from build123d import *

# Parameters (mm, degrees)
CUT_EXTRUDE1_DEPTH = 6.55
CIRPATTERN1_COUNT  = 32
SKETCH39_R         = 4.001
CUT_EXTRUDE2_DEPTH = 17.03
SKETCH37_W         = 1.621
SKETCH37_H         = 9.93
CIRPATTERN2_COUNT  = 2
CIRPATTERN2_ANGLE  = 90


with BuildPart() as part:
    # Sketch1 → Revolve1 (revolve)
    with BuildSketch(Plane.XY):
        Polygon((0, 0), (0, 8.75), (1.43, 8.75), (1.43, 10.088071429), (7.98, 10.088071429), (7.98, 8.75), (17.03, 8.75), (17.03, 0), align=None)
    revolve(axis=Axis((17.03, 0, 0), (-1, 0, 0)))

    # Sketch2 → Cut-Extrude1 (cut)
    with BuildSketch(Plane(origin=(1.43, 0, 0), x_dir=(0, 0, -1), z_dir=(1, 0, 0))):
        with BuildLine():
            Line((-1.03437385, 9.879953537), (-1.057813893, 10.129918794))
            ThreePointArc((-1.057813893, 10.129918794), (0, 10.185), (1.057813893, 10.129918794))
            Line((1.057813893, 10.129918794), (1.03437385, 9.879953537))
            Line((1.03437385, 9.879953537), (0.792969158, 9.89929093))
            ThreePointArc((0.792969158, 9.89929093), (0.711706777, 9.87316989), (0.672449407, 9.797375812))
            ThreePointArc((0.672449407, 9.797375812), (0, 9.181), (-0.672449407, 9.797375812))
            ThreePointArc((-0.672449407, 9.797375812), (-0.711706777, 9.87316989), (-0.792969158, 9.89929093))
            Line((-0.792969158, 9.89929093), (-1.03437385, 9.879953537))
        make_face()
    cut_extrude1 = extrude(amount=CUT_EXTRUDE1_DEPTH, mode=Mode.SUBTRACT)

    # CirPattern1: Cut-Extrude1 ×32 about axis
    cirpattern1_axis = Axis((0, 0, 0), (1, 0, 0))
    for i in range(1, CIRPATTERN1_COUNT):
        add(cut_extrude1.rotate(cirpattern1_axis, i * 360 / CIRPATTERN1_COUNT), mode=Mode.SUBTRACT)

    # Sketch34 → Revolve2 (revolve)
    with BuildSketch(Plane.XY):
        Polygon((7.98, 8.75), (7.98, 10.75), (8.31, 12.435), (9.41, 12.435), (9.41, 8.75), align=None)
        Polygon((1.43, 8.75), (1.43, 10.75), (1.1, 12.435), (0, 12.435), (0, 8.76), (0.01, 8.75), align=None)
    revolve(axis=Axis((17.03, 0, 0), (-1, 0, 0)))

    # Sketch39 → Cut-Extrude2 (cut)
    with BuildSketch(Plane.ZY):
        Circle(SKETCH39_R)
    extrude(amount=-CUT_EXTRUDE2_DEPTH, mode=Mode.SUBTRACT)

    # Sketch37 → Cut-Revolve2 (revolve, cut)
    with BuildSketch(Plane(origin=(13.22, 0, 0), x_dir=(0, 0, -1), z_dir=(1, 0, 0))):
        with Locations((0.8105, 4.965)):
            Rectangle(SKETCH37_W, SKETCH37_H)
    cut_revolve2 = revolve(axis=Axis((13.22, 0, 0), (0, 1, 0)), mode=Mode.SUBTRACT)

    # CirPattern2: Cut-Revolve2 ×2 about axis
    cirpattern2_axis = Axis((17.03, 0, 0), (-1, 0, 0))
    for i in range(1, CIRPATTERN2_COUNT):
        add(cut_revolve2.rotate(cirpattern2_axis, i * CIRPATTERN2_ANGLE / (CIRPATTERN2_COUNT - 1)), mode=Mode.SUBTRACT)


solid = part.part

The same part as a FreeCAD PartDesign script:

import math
import FreeCAD as App
import Part
import Sketcher
Q = App.Units.Quantity


def add_polygon(sketch, points):
    """Adds a closed chain of lines whose ends are joined by coincident constraints."""
    first, n = sketch.GeometryCount, len(points)
    for a, b in zip(points, points[1:] + points[:1]):
        sketch.addGeometry(Part.LineSegment(App.Vector(*a, 0), App.Vector(*b, 0)), False)
    for i in range(n):
        sketch.addConstraint(Sketcher.Constraint("Coincident", first + i, 2, first + (i + 1) % n, 1))

doc = App.newDocument("Part")
body = doc.addObject("PartDesign::Body", "Body")

# Sketch on XY plane
sketch1 = body.newObject("Sketcher::SketchObject", "Sketch")
sketch1.AttachmentSupport = (doc.getObject("XY_Plane"), [""])
sketch1.MapMode = "FlatFace"
add_polygon(sketch1, [(0, 8.8), (0, 0), (17, 0), (17, 8.8), (8, 8.8), (8, 10.1), (1.4, 10.1), (1.4, 8.8)])  # lines 0-7
sketch1.addConstraint([
    Sketcher.Constraint("Vertical", 0),
    Sketcher.Constraint("Horizontal", 1),
    Sketcher.Constraint("Vertical", 2),
    Sketcher.Constraint("Horizontal", 3),
    Sketcher.Constraint("Vertical", 4),
    Sketcher.Constraint("Horizontal", 5),
    Sketcher.Constraint("Vertical", 6),
    Sketcher.Constraint("Horizontal", 7),
    Sketcher.Constraint("Coincident", 0, 2, -1, 1),
    Sketcher.Constraint("Horizontal", 3, 2, 6, 2),
    Sketcher.Constraint("DistanceX", 1, 1, 1, 2, 17.03),
    Sketcher.Constraint("DistanceX", 3, 2, 3, 1, 9.05),
    Sketcher.Constraint("DistanceX", 5, 2, 5, 1, 6.55),
    Sketcher.Constraint("DistanceY", 0, 2, 0, 1, 8.75),
    Sketcher.Constraint("DistanceY", 4, 1, 4, 2, 1.338071),
])
revolution = body.newObject("PartDesign::Revolution", "Revolution")
revolution.Profile = sketch1
revolution.ReferenceAxis = (sketch1, ["H_Axis"])
revolution.Angle = 360

# Sketch on YZ plane
sketch2 = body.newObject("Sketcher::SketchObject", "Sketch001")
sketch2.AttachmentSupport = (doc.getObject("YZ_Plane"), [""])
sketch2.MapMode = "FlatFace"
sketch2.AttachmentOffset = App.Placement(App.Vector(0, 0, 1.43), App.Rotation())
sketch2.addGeometry([
    Part.LineSegment(App.Vector(10.129919, 1.057814, 0), App.Vector(9.879954, 1.034374, 0)),  # 0
    Part.LineSegment(App.Vector(9.879954, 1.034374, 0), App.Vector(9.899291, 0.792969, 0)),  # 1
    Part.ArcOfCircle(Part.Circle(App.Vector(9.787649, 0.784026, 0), App.Vector(0, 0, 1), 0.112), math.radians(-85.017547), math.radians(4.579821)),  # 2
    Part.ArcOfCircle(Part.Circle(App.Vector(9.856, 0, 0), App.Vector(0, 0, 1), 0.675), math.radians(94.982453), math.radians(265.017547)),  # 3
    Part.ArcOfCircle(Part.Circle(App.Vector(9.787649, -0.784026, 0), App.Vector(0, 0, 1), 0.112), math.radians(-4.579821), math.radians(85.017547)),  # 4
    Part.LineSegment(App.Vector(9.899291, -0.792969, 0), App.Vector(9.879954, -1.034374, 0)),  # 5
    Part.LineSegment(App.Vector(9.879954, -1.034374, 0), App.Vector(10.129919, -1.057814, 0)),  # 6
    Part.ArcOfCircle(Part.Circle(App.Vector(0, 0, 0), App.Vector(0, 0, 1), 10.185), math.radians(-5.961489), math.radians(5.961489)),  # 7
], False)
sketch2.addConstraint([
    Sketcher.Constraint("Coincident", 0, 2, 1, 1),
    Sketcher.Constraint("Coincident", 1, 2, 2, 2),
    Sketcher.Constraint("Coincident", 2, 1, 3, 1),
    Sketcher.Constraint("Coincident", 3, 2, 4, 2),
    Sketcher.Constraint("Coincident", 4, 1, 5, 1),
    Sketcher.Constraint("Coincident", 5, 2, 6, 1),
    Sketcher.Constraint("Coincident", 6, 2, 7, 1),
    Sketcher.Constraint("Coincident", 7, 2, 0, 1),
    Sketcher.Constraint("Coincident", 7, 3, -1, 1),
    Sketcher.Constraint("PointOnObject", 3, 3, -1),
    Sketcher.Constraint("Radius", 2, 0.112),
    Sketcher.Constraint("Radius", 3, 0.675),
    Sketcher.Constraint("Radius", 4, 0.112),
    Sketcher.Constraint("Radius", 7, 10.185),
    Sketcher.Constraint("DistanceX", -1, 1, 3, 3, 9.856),
    Sketcher.Constraint("DistanceY", 4, 3, 0, 2, 1.8184),
    Sketcher.Constraint("DistanceY", 3, 2, 2, 1, 1.344899),
    Sketcher.Constraint("Distance", 0, 0.251062),
    Sketcher.Constraint("Distance", 6, 0.251062),
    Sketcher.Constraint("DistanceX", -1, 1, 2, 3, 9.787649),
    Sketcher.Constraint("DistanceX", -1, 1, 4, 3, 9.787649),
    Sketcher.Constraint("DistanceX", -1, 1, 1, 2, 9.899291),
    Sketcher.Constraint("DistanceY", -1, 1, 2, 1, 0.672449),
    Sketcher.Constraint("DistanceX", -1, 1, 4, 1, 9.899291),
    Sketcher.Constraint("DistanceX", -1, 1, 6, 2, 10.129919),
    Sketcher.Constraint("DistanceX", -1, 1, 7, 2, 10.129919),
    Sketcher.Constraint("DistanceY", 6, 2, 5, 2, 0.02344),
])
pocket1 = body.newObject("PartDesign::Pocket", "Pocket")
pocket1.Profile = sketch2
pocket1.Length = 6.55
pocket1.Reversed = True
doc.recompute()

polarpattern = body.newObject("PartDesign::PolarPattern", "PolarPattern")
polarpattern.Originals = [pocket1]
polarpattern.Axis = (doc.getObject("X_Axis"), [""])
polarpattern.Angle = 360
polarpattern.Occurrences = 32
body.Tip = polarpattern

# Sketch on XY plane
sketch3 = body.newObject("Sketcher::SketchObject", "Sketch002")
sketch3.AttachmentSupport = (doc.getObject("XY_Plane"), [""])
sketch3.MapMode = "FlatFace"
add_polygon(sketch3, [(7.98, 10.75), (7.98, 8.75), (9.41, 8.75), (9.41, 12.435), (8.31, 12.435)])  # lines 0-4
add_polygon(sketch3, [(1.43, 8.75), (1.43, 10.75), (1.1, 12.435), (0, 12.435), (0, 8.76), (0.01, 8.75)])  # lines 5-10
sketch3.addConstraint([
    Sketcher.Constraint("Vertical", 0),
    Sketcher.Constraint("Horizontal", 1),
    Sketcher.Constraint("Vertical", 2),
    Sketcher.Constraint("Horizontal", 3),
    Sketcher.Constraint("Vertical", 5),
    Sketcher.Constraint("Horizontal", 7),
    Sketcher.Constraint("Vertical", 8),
    Sketcher.Constraint("Horizontal", 10),
    Sketcher.Constraint("PointOnObject", 7, 2, -2),
    Sketcher.Constraint("Horizontal", 4, 2, 5, 2),
    Sketcher.Constraint("Horizontal", 3, 2, 6, 2),
    Sketcher.Constraint("Horizontal", 1, 2, 9, 2),
    Sketcher.Constraint("Equal", 3, 7),
    Sketcher.Constraint("Equal", 4, 6),
    Sketcher.Constraint("DistanceY", 0, 2, 0, 1, 2.0),
    Sketcher.Constraint("Angle", 9, Q("-45 deg")),
    Sketcher.Constraint("DistanceX", 3, 2, 3, 1, 1.1),
    Sketcher.Constraint("DistanceX", 1, 1, 1, 2, 1.43),
    Sketcher.Constraint("DistanceX", 10, 1, 10, 2, 1.42),
    Sketcher.Constraint("DistanceY", 2, 1, 2, 2, 3.685),
    Sketcher.Constraint("DistanceX", -1, 1, 0, 2, 7.98),
    Sketcher.Constraint("DistanceY", -1, 1, 0, 2, 8.75),
])
revolution2 = body.newObject("PartDesign::Revolution", "Revolution001")
revolution2.Profile = sketch3
revolution2.ReferenceAxis = (sketch3, ["H_Axis"])
revolution2.Angle = 360

# Sketch on YZ plane
sketch4 = body.newObject("Sketcher::SketchObject", "Sketch003")
sketch4.AttachmentSupport = (doc.getObject("YZ_Plane"), [""])
sketch4.MapMode = "FlatFace"
sketch4.addGeometry(Part.Circle(App.Vector(0, 0, 0), App.Vector(0, 0, 1), 4), False)
sketch4.addConstraint([
    Sketcher.Constraint("Coincident", 0, 3, -1, 1),
    Sketcher.Constraint("Diameter", 0, 8.002),
])
pocket2 = body.newObject("PartDesign::Pocket", "Pocket001")
pocket2.Profile = sketch4
pocket2.Length = 17.03
pocket2.Reversed = True

# Sketch on YZ plane
sketch5 = body.newObject("Sketcher::SketchObject", "Sketch004")
sketch5.AttachmentSupport = (doc.getObject("YZ_Plane"), [""])
sketch5.MapMode = "FlatFace"
sketch5.AttachmentOffset = App.Placement(App.Vector(0, 0, 13.22), App.Rotation())
add_polygon(sketch5, [(9.9, 0), (0, 0), (0, -1.6), (9.9, -1.6)])  # lines 0-3
sketch5.addConstraint([
    Sketcher.Constraint("Horizontal", 0),
    Sketcher.Constraint("Vertical", 1),
    Sketcher.Constraint("Horizontal", 2),
    Sketcher.Constraint("Vertical", 3),
    Sketcher.Constraint("Coincident", 0, 2, -1, 1),
    Sketcher.Constraint("DistanceX", 0, 2, 0, 1, 9.93),
    Sketcher.Constraint("DistanceY", 1, 2, 1, 1, 1.621),
])
groove = body.newObject("PartDesign::Groove", "Groove")
groove.Profile = sketch5
groove.ReferenceAxis = (sketch5, ["H_Axis"])
groove.Angle = 360
doc.recompute()

polarpattern2 = body.newObject("PartDesign::PolarPattern", "PolarPattern001")
polarpattern2.Originals = [groove]
polarpattern2.Axis = (doc.getObject("X_Axis"), [""])
polarpattern2.Angle = 90
polarpattern2.Occurrences = 2
polarpattern2.Reversed = True
body.Tip = polarpattern2

doc.recompute()
